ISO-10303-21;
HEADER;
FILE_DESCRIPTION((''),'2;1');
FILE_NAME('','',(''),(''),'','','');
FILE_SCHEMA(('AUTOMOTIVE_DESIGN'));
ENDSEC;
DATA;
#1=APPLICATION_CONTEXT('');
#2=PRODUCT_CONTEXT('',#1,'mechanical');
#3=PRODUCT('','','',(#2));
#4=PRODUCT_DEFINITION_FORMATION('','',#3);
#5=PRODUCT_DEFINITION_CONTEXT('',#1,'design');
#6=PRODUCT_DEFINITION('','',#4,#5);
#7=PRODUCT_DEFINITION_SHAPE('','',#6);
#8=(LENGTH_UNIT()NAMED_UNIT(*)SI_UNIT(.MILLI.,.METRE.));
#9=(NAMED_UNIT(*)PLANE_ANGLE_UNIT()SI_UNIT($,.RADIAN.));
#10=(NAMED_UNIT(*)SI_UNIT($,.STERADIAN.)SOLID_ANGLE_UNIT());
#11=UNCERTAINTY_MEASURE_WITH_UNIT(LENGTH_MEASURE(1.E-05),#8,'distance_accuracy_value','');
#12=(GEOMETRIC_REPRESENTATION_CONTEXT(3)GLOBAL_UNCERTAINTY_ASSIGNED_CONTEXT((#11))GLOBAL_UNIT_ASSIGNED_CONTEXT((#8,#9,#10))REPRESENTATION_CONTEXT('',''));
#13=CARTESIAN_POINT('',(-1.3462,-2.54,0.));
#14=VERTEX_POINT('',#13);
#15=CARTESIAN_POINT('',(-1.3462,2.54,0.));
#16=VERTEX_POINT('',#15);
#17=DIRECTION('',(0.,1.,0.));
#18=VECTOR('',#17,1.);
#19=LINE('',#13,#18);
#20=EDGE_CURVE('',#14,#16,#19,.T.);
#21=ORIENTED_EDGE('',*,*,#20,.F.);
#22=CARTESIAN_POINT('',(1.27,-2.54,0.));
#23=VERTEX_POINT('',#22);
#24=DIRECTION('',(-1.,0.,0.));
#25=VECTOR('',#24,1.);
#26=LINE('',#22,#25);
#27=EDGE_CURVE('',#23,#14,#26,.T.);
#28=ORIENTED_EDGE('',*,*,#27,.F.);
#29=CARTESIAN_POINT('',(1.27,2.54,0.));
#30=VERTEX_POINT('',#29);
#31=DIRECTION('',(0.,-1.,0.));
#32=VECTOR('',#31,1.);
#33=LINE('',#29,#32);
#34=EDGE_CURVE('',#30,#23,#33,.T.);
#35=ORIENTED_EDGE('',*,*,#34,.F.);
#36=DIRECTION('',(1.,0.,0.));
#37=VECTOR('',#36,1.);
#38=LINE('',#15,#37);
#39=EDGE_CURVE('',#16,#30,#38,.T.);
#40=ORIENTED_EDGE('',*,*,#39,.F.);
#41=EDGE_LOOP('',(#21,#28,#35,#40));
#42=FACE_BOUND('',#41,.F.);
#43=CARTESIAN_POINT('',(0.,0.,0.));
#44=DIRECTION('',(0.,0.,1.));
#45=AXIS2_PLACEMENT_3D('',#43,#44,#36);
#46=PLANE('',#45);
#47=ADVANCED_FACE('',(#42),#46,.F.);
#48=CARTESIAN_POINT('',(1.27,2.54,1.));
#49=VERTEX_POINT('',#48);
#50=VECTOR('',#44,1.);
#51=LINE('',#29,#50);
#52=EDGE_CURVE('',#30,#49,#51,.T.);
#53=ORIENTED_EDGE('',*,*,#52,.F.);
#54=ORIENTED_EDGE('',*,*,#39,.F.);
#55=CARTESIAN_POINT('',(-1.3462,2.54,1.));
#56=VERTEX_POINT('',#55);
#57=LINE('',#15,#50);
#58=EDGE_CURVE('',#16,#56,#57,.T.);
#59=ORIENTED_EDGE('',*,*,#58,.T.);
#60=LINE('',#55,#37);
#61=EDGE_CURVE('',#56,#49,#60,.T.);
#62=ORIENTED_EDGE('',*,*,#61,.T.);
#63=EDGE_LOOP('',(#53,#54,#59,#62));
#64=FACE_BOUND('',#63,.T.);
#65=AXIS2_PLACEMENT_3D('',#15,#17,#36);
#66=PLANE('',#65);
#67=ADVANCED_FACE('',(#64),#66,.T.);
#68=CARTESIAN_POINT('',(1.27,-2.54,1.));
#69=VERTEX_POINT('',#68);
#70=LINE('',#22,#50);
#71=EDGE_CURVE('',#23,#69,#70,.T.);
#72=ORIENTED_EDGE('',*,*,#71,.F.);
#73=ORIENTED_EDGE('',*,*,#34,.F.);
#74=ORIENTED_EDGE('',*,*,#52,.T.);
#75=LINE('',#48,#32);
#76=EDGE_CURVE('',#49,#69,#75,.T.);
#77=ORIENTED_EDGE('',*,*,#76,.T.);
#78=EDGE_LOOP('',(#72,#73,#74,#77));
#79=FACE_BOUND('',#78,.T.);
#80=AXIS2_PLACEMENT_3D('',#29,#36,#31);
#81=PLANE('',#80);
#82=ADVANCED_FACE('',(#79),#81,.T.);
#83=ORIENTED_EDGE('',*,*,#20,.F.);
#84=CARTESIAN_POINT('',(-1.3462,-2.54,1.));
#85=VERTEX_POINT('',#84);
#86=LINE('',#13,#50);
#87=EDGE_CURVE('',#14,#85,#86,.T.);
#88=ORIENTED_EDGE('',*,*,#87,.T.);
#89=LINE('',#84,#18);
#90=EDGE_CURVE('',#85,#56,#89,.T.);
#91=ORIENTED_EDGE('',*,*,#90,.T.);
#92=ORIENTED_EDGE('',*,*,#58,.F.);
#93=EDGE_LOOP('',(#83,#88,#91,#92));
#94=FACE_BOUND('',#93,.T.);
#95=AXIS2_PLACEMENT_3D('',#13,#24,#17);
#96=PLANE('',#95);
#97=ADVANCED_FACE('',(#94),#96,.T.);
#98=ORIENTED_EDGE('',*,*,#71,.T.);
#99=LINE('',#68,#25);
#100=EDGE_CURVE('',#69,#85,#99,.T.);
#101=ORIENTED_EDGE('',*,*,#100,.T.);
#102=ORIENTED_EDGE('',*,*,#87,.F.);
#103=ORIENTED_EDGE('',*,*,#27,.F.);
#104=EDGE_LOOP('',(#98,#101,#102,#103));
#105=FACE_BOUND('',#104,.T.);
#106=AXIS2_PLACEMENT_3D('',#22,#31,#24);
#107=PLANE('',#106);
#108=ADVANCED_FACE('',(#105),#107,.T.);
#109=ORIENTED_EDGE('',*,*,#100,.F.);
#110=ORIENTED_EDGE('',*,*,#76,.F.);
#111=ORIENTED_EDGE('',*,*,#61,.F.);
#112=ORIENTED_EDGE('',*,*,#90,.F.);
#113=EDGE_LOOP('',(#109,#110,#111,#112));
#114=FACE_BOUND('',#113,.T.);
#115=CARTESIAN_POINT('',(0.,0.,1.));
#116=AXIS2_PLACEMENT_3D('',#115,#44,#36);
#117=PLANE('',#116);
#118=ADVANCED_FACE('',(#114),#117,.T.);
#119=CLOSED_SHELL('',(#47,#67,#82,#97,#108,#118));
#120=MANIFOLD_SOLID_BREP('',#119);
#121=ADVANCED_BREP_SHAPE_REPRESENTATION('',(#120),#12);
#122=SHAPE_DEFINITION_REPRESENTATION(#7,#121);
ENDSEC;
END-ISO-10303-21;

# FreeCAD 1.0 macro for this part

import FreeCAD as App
import Part
import Sketcher
from FreeCAD import Vector
Q = App.Units.Quantity

doc = App.newDocument("Part")
params = doc.addObject("Spreadsheet::Sheet", "Params")
for row, (alias, value) in enumerate([
    ("sketch1_height", "0.2 in"),
    ("sketch1_width", "0.103 in"),
    ("pad1_length", "1 mm"),
], start=1):
    params.set(f"A{row}", alias)
    params.set(f"B{row}", "=" + value)
    params.setAlias(f"B{row}", alias)

body = doc.addObject("PartDesign::Body", "Body")

sketch1 = doc.addObject("Sketcher::SketchObject", "Sketch")
body.addObject(sketch1)
sketch1.AttachmentSupport = (doc.XY_Plane, [""])
sketch1.MapMode = "FlatFace"
sketch1.addGeometry(Part.LineSegment(Vector(1.3, 2.5, 0), Vector(-1.3, 2.5, 0)), False)
sketch1.addGeometry(Part.LineSegment(Vector(-1.3, 2.5, 0), Vector(-1.3, -2.5, 0)), False)
sketch1.addGeometry(Part.LineSegment(Vector(-1.3, -2.5, 0), Vector(1.3, -2.5, 0)), False)
sketch1.addGeometry(Part.LineSegment(Vector(1.3, -2.5, 0), Vector(1.3, 2.5, 0)), False)
sketch1.addConstraint(Sketcher.Constraint("Coincident", 0, 2, 1, 1))
sketch1.addConstraint(Sketcher.Constraint("Coincident", 1, 2, 2, 1))
sketch1.addConstraint(Sketcher.Constraint("Coincident", 2, 2, 3, 1))
sketch1.addConstraint(Sketcher.Constraint("Coincident", 3, 2, 0, 1))
sketch1.addConstraint(Sketcher.Constraint("Horizontal", 0))
sketch1.addConstraint(Sketcher.Constraint("Vertical", 1))
sketch1.addConstraint(Sketcher.Constraint("Horizontal", 2))
sketch1.addConstraint(Sketcher.Constraint("Vertical", 3))
sketch1.addConstraint(Sketcher.Constraint("DistanceY", 1, 2, 1, 1, Q("0.2 in")))
sketch1.addConstraint(Sketcher.Constraint("DistanceY", -1, 1, 0, 2, Q("0.1 in")))
sketch1.addConstraint(Sketcher.Constraint("DistanceX", 0, 2, 0, 1, Q("0.103 in")))
sketch1.addConstraint(Sketcher.Constraint("DistanceX", -1, 1, 2, 2, Q("0.05 in")))
sketch1.setExpression("Constraints[8]", "Params.sketch1_height")
sketch1.setExpression("Constraints[10]", "Params.sketch1_width")
pad1 = doc.addObject("PartDesign::Pad", "Pad")
body.addObject(pad1)
pad1.Profile = sketch1
pad1.setExpression("Length", "Params.pad1_length")

doc.recompute()
